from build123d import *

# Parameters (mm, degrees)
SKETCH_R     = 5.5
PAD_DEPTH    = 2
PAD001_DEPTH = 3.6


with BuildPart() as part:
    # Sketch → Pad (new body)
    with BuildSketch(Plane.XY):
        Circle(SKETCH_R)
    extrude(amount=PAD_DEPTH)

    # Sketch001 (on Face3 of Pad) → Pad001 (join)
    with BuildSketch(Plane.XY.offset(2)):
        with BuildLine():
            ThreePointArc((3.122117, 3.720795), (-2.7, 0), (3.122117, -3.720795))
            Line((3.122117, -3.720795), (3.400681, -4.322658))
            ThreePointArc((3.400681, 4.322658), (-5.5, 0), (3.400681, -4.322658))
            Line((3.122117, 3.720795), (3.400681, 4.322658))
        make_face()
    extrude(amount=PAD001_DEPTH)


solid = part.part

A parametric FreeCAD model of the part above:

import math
import FreeCAD as App
import Part
import Sketcher

V = App.Vector
Q = App.Units.Quantity

doc = App.newDocument("Part")
body = doc.addObject("PartDesign::Body", "Body")

# Sketch on XY plane
sketch1 = body.newObject("Sketcher::SketchObject", "Sketch")
sketch1.AttachmentSupport = (doc.getObject("XY_Plane"), [""])
sketch1.MapMode = "FlatFace"
sketch1.addGeometry(Part.Circle(V(0, 0, 0), V(0, 0, 1), 5.5), False)
sketch1.addConstraint([
    Sketcher.Constraint("Coincident", 0, 3, -1, 1),
    Sketcher.Constraint("Diameter", 0, Q("11 mm")),
])
pad1 = body.newObject("PartDesign::Pad", "Pad")
pad1.Profile = sketch1
pad1.Length = 2

# Sketch on XY plane
sketch2 = body.newObject("Sketcher::SketchObject", "Sketch001")
sketch2.AttachmentSupport = (doc.getObject("XY_Plane"), [""])
sketch2.MapMode = "FlatFace"
sketch2.AttachmentOffset = App.Placement(V(0, 0, 2), App.Rotation())
sketch2.addGeometry([
    Part.ArcOfCircle(Part.Circle(V(1.4, 0, 0), V(0, 0, 1), 4.1), math.radians(65.163615), math.radians(294.836385)),
    Part.LineSegment(V(3.122117, 3.720795, 0), V(3.400681, 4.322658, 0)),
    Part.ArcOfCircle(Part.Circle(V(0, 0, 0), V(0, 0, 1), 5.5), math.radians(51.807496), math.radians(308.192504)),
    Part.LineSegment(V(3.400681, -4.322658, 0), V(3.122117, -3.720795, 0)),
], False)
sketch2.addConstraint([
    Sketcher.Constraint("Coincident", 0, 1, 1, 1),
    Sketcher.Constraint("Coincident", 1, 2, 2, 1),
    Sketcher.Constraint("Coincident", 2, 2, 3, 1),
    Sketcher.Constraint("Coincident", 3, 2, 0, 2),
    Sketcher.Constraint("Coincident", 2, 3, -1, 1),
    Sketcher.Constraint("Symmetric", 0, 1, 3, 2, -1),
    Sketcher.Constraint("Vertical", 1, 2, 2, 2),
    Sketcher.Constraint("Radius", 0, Q("4.1 mm")),
    Sketcher.Constraint("Radius", 2, Q("5.5 mm")),
    Sketcher.Constraint("DistanceX", -1, 1, 0, 3, Q("1.4 mm")),
    Sketcher.Constraint("DistanceX", -1, 1, 1, 2, Q("3.400681 mm")),
    Sketcher.Constraint("DistanceY", 3, 2, 0, 1, Q("7.44159 mm")),
])
pad2 = body.newObject("PartDesign::Pad", "Pad001")
pad2.Profile = sketch2
pad2.Length = 3.6

doc.recompute()
